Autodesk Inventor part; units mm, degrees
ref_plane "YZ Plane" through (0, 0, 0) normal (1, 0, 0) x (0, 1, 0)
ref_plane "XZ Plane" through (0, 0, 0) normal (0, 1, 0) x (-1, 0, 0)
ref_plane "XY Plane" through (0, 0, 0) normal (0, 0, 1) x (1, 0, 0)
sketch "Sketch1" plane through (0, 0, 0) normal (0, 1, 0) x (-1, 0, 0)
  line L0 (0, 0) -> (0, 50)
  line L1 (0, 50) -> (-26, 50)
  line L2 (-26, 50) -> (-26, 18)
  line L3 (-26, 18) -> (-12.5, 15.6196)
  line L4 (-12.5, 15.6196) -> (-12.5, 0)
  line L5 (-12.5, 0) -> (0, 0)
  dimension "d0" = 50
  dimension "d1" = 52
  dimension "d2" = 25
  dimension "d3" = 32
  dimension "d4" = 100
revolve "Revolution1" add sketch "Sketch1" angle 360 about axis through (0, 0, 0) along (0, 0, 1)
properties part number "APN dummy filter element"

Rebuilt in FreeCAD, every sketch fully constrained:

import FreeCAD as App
import Part
import Sketcher

V = App.Vector
Q = App.Units.Quantity


def add_polygon(sketch, points):
    """Adds a closed chain of lines whose ends are joined by coincident constraints."""
    first, n = sketch.GeometryCount, len(points)
    for a, b in zip(points, points[1:] + points[:1]):
        sketch.addGeometry(Part.LineSegment(App.Vector(*a, 0), App.Vector(*b, 0)), False)
    for i in range(n):
        sketch.addConstraint(Sketcher.Constraint("Coincident", first + i, 2, first + (i + 1) % n, 1))

doc = App.newDocument("Part")
body = doc.addObject("PartDesign::Body", "Body")

# Sketch on XZ plane
sketch1 = doc.addObject("Sketcher::SketchObject", "Sketch")
body.addObject(sketch1)
sketch1.AttachmentSupport = (doc.XZ_Plane, [""])
sketch1.MapMode = "FlatFace"
add_polygon(sketch1, [(12.5, 0), (0, 0), (0, 50), (26, 50), (26, 18), (12.5, 15.6196)])  # lines 0-5
sketch1.addConstraint(Sketcher.Constraint("Horizontal", 0))
sketch1.addConstraint(Sketcher.Constraint("Vertical", 1))
sketch1.addConstraint(Sketcher.Constraint("Horizontal", 2))
sketch1.addConstraint(Sketcher.Constraint("Vertical", 3))
sketch1.addConstraint(Sketcher.Constraint("Vertical", 5))
sketch1.addConstraint(Sketcher.Constraint("Coincident", 0, 2, -1, 1))
sketch1.addConstraint(Sketcher.Constraint("DistanceY", 1, 1, 1, 2, 50.0))
sketch1.addConstraint(Sketcher.Constraint("DistanceY", 3, 2, 3, 1, 32.0))
sketch1.addConstraint(Sketcher.Constraint("DistanceX", 2, 1, 2, 2, 26.0))
sketch1.addConstraint(Sketcher.Constraint("Angle", 4, Q("-170 deg")))
sketch1.addConstraint(Sketcher.Constraint("DistanceX", 0, 2, 0, 1, 12.5))
revolution = doc.addObject("PartDesign::Revolution", "Revolution")
body.addObject(revolution)
revolution.Profile = sketch1
revolution.ReferenceAxis = (sketch1, ["V_Axis"])
revolution.Angle = 360

doc.recompute()
